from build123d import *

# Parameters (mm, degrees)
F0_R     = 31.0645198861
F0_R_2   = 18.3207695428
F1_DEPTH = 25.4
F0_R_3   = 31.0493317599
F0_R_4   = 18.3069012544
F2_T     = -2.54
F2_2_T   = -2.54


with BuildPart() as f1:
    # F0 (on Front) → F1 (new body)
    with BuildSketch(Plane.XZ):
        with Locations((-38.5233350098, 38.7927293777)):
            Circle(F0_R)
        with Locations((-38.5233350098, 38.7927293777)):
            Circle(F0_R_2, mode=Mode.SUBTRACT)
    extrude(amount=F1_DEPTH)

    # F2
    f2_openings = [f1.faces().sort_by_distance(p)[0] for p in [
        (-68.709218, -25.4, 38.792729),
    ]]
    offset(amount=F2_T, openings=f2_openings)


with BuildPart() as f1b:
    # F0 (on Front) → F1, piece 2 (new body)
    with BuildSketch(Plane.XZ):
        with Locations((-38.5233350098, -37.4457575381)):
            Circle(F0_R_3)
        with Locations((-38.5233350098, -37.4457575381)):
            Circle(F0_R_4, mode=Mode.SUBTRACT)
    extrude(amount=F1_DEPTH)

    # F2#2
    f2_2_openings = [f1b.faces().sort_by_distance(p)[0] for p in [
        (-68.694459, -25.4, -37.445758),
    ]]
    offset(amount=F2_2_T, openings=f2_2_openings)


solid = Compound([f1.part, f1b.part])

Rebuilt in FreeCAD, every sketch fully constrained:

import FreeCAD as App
import Part
import Sketcher
from FreeCAD import Vector
Q = App.Units.Quantity


def faces_at(feature, points):
    """Names of the faces that lie closest to the given points."""
    faces = feature.Shape.Faces
    near = lambda p: min(range(len(faces)), key=lambda i: faces[i].distToShape(Part.Vertex(*p))[0])
    return sorted({f"Face{near(p) + 1}" for p in points})

doc = App.newDocument("Part")
params = doc.addObject("Spreadsheet::Sheet", "Params")
for row, (alias, value) in enumerate([
    ("pad1_length", "1 in"),
    ("thickness_wall", "0.1 in"),
    ("pad2_length", "1 in"),
    ("thickness2_wall", "0.1 in"),
], start=1):
    params.set(f"A{row}", alias)
    params.set(f"B{row}", "=" + value)
    params.setAlias(f"B{row}", alias)

body = doc.addObject("PartDesign::Body", "Body")

sketch1 = body.newObject("Sketcher::SketchObject", "Sketch")
sketch1.AttachmentSupport = (doc.getObject("XZ_Plane"), [""])
sketch1.MapMode = "FlatFace"
sketch1.addGeometry([
    Part.Circle(Vector(-39, 39, 0), Vector(0, 0, 1), 31),
    Part.Circle(Vector(-39, 39, 0), Vector(0, 0, 1), 18),
], False)
sketch1.addConstraint([
    Sketcher.Constraint("Coincident", 1, 3, 0, 3),
    Sketcher.Constraint("Diameter", 0, Q("62.12904 mm")),
    Sketcher.Constraint("Diameter", 1, Q("36.641539 mm")),
    Sketcher.Constraint("DistanceY", -1, 1, 0, 3, Q("38.792729 mm")),
    Sketcher.Constraint("DistanceX", 0, 3, -1, 1, Q("38.523335 mm")),
])
pad1 = body.newObject("PartDesign::Pad", "Pad")
pad1.Profile = sketch1
pad1.setExpression("Length", "Params.pad1_length")
doc.recompute()

thickness = body.newObject("PartDesign::Thickness", "Thickness")
thickness.Base = (pad1, faces_at(pad1, [(-63.375, -25.4, 38.793)]))
thickness.setExpression("Value", "Params.thickness_wall")
thickness.Reversed = True
thickness.Join = "Arc"
body2 = doc.addObject("PartDesign::Body", "Body001")

sketch2 = body2.newObject("Sketcher::SketchObject", "Sketch001")
sketch2.AttachmentSupport = (doc.getObject("XZ_Plane001"), [""])
sketch2.MapMode = "FlatFace"
sketch2.addGeometry([
    Part.Circle(Vector(-39, -37, 0), Vector(0, 0, 1), 31),
    Part.Circle(Vector(-39, -37, 0), Vector(0, 0, 1), 18),
], False)
sketch2.addConstraint([
    Sketcher.Constraint("Coincident", 1, 3, 0, 3),
    Sketcher.Constraint("Diameter", 0, Q("62.098664 mm")),
    Sketcher.Constraint("Diameter", 1, Q("36.613803 mm")),
    Sketcher.Constraint("DistanceX", 0, 3, -1, 1, Q("38.523335 mm")),
    Sketcher.Constraint("DistanceY", 0, 3, -1, 1, Q("37.445758 mm")),
])
pad2 = body2.newObject("PartDesign::Pad", "Pad001")
pad2.Profile = sketch2
pad2.setExpression("Length", "Params.pad2_length")
doc.recompute()

thickness2 = body2.newObject("PartDesign::Thickness", "Thickness001")
thickness2.Base = (pad2, faces_at(pad2, [(-63.363, -25.4, -37.446)]))
thickness2.setExpression("Value", "Params.thickness2_wall")
thickness2.Reversed = True
thickness2.Join = "Arc"

doc.recompute()
